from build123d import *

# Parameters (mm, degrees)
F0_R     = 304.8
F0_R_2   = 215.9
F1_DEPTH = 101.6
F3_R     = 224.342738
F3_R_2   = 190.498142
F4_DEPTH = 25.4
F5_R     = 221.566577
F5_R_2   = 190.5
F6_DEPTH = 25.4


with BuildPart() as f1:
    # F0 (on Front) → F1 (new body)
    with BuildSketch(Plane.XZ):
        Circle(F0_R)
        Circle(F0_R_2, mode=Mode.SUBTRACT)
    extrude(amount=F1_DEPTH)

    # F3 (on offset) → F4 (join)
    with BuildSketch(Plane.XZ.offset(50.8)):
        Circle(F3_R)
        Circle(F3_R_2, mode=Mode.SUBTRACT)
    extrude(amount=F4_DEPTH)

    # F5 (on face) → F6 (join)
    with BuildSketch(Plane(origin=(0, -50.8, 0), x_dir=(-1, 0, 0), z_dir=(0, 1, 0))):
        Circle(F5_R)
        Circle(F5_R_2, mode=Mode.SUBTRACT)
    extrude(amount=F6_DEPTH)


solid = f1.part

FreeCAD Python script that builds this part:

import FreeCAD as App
import Part
import Sketcher
Q = App.Units.Quantity

doc = App.newDocument("Part")
body = doc.addObject("PartDesign::Body", "Body")

# Sketch on XZ plane
sketch1 = doc.addObject("Sketcher::SketchObject", "Sketch")
body.addObject(sketch1)
sketch1.AttachmentSupport = (doc.XZ_Plane, [""])
sketch1.MapMode = "FlatFace"
sketch1.addGeometry([
    Part.Circle(App.Vector(0, 0, 0), App.Vector(0, 0, 1), 304.8),
    Part.Circle(App.Vector(0, 0, 0), App.Vector(0, 0, 1), 215.9),
], False)
sketch1.addConstraint([
    Sketcher.Constraint("Coincident", 0, 3, -1, 1),
    Sketcher.Constraint("Coincident", 1, 3, -1, 1),
    Sketcher.Constraint("Diameter", 0, Q("24 in")),
    Sketcher.Constraint("Diameter", 1, Q("17 in")),
])
pad1 = doc.addObject("PartDesign::Pad", "Pad")
body.addObject(pad1)
pad1.Profile = sketch1
pad1.Length = Q("4 in")

# Sketch on XZ plane
sketch2 = doc.addObject("Sketcher::SketchObject", "Sketch001")
body.addObject(sketch2)
sketch2.AttachmentSupport = (doc.XZ_Plane, [""])
sketch2.MapMode = "FlatFace"
sketch2.AttachmentOffset = App.Placement(App.Vector(0, 0, 2 * 25.4), App.Rotation())
sketch2.addGeometry([
    Part.Circle(App.Vector(0, 0, 0), App.Vector(0, 0, 1), 224.342738),
    Part.Circle(App.Vector(0, 0, 0), App.Vector(0, 0, 1), 190.498142),
], False)
sketch2.addConstraint([
    Sketcher.Constraint("Coincident", 0, 3, -1, 1),
    Sketcher.Constraint("Coincident", 1, 3, -1, 1),
    Sketcher.Constraint("Diameter", 0, Q("448.685476 mm")),
    Sketcher.Constraint("Diameter", 1, Q("380.996284 mm")),
])
pad2 = doc.addObject("PartDesign::Pad", "Pad001")
body.addObject(pad2)
pad2.Profile = sketch2
pad2.Length = Q("1 in")

# Sketch on XZ plane
sketch3 = doc.addObject("Sketcher::SketchObject", "Sketch002")
body.addObject(sketch3)
sketch3.AttachmentSupport = (doc.XZ_Plane, [""])
sketch3.MapMode = "FlatFace"
sketch3.AttachmentOffset = App.Placement(App.Vector(0, 0, 2 * 25.4), App.Rotation())
sketch3.addGeometry([
    Part.Circle(App.Vector(0, 0, 0), App.Vector(0, 0, 1), 221.566577),
    Part.Circle(App.Vector(0, 0, 0), App.Vector(0, 0, 1), 190.5),
], False)
sketch3.addConstraint([
    Sketcher.Constraint("Coincident", 0, 3, -1, 1),
    Sketcher.Constraint("Coincident", 1, 3, -1, 1),
    Sketcher.Constraint("Diameter", 1, Q("15 in")),
    Sketcher.Constraint("Diameter", 0, Q("443.133154 mm")),
])
pad3 = doc.addObject("PartDesign::Pad", "Pad002")
body.addObject(pad3)
pad3.Profile = sketch3
pad3.Length = Q("1 in")
pad3.Reversed = True

doc.recompute()
